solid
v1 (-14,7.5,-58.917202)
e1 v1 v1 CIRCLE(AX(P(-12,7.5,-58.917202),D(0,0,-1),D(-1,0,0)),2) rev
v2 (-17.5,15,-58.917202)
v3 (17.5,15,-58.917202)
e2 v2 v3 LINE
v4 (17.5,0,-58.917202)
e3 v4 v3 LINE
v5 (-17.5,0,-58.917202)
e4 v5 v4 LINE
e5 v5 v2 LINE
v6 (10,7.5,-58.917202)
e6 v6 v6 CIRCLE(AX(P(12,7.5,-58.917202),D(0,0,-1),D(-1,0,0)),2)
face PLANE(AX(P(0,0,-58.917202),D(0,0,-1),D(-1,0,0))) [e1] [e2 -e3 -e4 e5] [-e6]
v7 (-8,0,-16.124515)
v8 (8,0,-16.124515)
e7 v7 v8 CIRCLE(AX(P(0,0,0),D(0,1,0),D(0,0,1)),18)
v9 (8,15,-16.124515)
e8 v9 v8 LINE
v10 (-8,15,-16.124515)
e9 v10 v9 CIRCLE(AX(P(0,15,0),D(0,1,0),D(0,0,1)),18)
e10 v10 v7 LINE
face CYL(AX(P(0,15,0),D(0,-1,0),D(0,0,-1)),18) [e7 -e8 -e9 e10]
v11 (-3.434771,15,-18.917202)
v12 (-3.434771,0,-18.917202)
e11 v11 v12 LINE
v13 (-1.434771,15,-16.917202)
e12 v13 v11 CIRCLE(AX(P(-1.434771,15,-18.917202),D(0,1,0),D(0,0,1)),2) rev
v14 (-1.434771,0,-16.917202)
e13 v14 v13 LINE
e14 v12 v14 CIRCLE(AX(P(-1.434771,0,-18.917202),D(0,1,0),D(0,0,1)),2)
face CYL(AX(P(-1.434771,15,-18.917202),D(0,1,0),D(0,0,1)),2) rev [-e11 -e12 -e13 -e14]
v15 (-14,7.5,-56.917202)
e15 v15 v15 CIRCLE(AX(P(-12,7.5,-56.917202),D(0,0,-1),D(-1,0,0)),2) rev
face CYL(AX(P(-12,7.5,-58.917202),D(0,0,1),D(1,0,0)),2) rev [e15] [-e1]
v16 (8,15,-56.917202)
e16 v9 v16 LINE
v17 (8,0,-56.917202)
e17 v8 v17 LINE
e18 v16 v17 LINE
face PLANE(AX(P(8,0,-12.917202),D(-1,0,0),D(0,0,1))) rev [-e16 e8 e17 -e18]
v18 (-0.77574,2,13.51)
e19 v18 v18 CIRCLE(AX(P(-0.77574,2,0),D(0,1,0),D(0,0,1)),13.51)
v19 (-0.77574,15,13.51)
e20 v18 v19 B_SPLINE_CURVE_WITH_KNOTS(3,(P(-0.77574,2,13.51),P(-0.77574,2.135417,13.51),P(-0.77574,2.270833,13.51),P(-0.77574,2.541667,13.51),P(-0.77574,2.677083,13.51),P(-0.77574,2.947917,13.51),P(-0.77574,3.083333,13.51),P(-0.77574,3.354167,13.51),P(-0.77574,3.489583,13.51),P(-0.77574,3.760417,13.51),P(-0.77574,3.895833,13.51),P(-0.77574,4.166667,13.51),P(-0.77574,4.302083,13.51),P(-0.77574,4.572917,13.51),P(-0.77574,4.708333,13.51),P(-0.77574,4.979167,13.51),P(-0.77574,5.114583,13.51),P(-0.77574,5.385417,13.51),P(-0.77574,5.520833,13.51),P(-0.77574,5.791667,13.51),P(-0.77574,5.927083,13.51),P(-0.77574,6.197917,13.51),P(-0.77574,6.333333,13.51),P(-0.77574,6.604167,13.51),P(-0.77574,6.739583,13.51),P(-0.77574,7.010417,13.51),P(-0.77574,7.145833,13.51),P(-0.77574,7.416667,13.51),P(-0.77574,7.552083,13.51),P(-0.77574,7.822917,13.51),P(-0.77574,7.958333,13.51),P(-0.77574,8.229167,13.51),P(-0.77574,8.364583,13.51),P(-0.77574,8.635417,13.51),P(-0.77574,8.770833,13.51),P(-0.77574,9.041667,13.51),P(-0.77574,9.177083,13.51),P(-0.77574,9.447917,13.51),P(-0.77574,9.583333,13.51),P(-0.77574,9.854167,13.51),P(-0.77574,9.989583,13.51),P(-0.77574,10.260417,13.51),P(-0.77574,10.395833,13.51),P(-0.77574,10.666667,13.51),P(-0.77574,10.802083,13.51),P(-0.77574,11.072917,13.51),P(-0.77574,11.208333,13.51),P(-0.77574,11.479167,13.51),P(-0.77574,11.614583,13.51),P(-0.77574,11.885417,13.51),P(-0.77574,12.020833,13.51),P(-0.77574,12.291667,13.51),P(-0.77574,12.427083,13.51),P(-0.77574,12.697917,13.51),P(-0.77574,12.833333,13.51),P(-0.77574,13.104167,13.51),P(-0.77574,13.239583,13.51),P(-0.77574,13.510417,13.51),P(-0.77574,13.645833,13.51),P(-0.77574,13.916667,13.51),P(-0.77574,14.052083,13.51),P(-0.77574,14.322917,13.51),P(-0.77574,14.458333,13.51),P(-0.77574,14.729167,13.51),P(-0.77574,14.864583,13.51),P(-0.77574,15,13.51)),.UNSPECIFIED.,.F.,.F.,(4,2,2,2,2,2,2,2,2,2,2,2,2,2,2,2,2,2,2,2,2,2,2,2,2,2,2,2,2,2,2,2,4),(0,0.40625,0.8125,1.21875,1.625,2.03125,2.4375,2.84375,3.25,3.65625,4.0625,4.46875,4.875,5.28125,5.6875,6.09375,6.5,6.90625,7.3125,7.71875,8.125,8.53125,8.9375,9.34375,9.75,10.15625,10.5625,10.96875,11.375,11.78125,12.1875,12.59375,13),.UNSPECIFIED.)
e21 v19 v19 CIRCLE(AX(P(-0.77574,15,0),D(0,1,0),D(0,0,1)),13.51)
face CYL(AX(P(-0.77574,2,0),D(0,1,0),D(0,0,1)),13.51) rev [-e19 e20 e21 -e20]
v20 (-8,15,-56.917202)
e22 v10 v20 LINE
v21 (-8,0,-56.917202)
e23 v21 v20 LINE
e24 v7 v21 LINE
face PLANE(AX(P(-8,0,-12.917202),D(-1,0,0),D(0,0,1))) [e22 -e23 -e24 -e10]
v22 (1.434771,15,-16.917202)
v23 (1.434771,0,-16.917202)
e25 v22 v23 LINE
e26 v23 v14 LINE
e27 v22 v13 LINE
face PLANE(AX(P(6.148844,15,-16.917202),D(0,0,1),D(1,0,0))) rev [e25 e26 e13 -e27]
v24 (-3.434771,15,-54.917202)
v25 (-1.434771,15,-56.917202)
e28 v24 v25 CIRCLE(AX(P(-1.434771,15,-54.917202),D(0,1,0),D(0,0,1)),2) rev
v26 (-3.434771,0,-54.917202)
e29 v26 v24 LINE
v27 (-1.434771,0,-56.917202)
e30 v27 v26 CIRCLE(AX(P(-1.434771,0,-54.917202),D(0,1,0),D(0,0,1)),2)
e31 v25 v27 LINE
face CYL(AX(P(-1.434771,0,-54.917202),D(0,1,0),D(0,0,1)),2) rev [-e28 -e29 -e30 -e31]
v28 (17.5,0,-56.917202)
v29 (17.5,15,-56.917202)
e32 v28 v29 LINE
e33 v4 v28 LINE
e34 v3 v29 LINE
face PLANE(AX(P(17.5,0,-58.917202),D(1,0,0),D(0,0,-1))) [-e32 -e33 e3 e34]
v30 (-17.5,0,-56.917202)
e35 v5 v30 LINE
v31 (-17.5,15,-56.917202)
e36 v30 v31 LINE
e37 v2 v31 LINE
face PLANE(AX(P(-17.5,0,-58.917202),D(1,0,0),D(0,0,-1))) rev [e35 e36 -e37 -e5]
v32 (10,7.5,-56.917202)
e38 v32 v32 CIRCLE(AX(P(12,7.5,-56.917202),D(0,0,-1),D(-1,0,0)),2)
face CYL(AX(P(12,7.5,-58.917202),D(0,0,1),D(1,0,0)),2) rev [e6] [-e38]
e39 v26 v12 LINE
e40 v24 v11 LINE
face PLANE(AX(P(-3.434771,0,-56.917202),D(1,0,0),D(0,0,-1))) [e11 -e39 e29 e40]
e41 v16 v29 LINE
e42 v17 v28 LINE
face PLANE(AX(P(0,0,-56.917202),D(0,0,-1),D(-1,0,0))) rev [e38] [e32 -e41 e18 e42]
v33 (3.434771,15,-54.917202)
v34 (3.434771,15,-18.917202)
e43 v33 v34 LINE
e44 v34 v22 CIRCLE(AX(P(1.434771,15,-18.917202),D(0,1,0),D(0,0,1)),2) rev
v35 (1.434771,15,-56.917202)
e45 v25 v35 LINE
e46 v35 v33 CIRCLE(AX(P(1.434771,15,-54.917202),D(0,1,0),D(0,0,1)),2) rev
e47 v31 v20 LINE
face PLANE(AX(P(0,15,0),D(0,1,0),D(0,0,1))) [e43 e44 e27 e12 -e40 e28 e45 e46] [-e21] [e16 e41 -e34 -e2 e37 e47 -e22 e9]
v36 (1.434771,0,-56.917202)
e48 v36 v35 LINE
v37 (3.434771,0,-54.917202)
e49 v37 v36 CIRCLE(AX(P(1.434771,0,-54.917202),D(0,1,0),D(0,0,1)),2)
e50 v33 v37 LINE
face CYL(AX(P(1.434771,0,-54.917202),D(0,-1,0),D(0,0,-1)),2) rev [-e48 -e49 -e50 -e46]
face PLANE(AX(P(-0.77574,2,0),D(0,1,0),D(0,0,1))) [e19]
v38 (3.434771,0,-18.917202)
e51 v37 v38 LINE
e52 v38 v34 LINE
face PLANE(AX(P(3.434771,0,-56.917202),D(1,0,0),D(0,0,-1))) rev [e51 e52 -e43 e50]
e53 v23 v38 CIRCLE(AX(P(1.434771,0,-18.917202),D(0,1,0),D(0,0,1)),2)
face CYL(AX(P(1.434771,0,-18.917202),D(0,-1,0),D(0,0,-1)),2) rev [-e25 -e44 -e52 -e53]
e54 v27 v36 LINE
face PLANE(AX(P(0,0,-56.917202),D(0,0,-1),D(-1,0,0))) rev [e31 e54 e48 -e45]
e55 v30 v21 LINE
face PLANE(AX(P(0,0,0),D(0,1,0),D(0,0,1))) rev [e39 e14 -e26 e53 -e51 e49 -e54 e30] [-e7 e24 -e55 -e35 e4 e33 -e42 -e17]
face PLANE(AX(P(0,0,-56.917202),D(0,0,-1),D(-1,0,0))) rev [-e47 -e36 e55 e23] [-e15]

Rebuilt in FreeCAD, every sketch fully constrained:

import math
import FreeCAD as App
import Part
import Sketcher

V = App.Vector


def edges_at(feature, points):
    """Names of the edges that pass closest to the given points."""
    edges = feature.Shape.Edges
    near = lambda p: min(range(len(edges)), key=lambda i: edges[i].distToShape(Part.Vertex(*p))[0])
    return sorted({f"Edge{near(p) + 1}" for p in points})

doc = App.newDocument("Part")
body = doc.addObject("PartDesign::Body", "Body")

sketch1 = body.newObject("Sketcher::SketchObject", "Sketch")
sketch1.AttachmentSupport = (doc.getObject("XZ_Plane"), [""])
sketch1.MapMode = "FlatFace"
sketch1.addGeometry([
    Part.LineSegment(V(6, -17, 0), V(-6, -17, 0)),
    Part.ArcOfCircle(Part.Circle(V(0, 0, 0), V(0, 0, 1), 18), math.radians(-70), math.radians(250)),
], False)
sketch1.addConstraint([
    Sketcher.Constraint("Coincident", 0, 1, 1, 1),
    Sketcher.Constraint("Coincident", 1, 2, 0, 2),
    Sketcher.Constraint("Horizontal", 0),
    Sketcher.Constraint("Coincident", 1, 3, -1, 1),
    Sketcher.Constraint("Radius", 1, 18.0),
    Sketcher.Constraint("DistanceX", 0, 2, 0, 1, 12.297689),
])
pad1 = body.newObject("PartDesign::Pad", "Pad")
pad1.Profile = sketch1
pad1.Length = 15
pad1.Reversed = True

sketch2 = body.newObject("Sketcher::SketchObject", "Sketch001")
sketch2.AttachmentSupport = (doc.getObject("XY_Plane"), [""])
sketch2.MapMode = "FlatFace"
sketch2.AttachmentOffset = App.Placement(V(0, 0, -16.917202), App.Rotation())
sketch2.addGeometry([
    Part.LineSegment(V(8, 15, 0), V(8, 0, 0)),
    Part.LineSegment(V(8, 0, 0), V(-8, 0, 0)),
    Part.LineSegment(V(-8, 0, 0), V(-8, 15, 0)),
    Part.LineSegment(V(-8, 15, 0), V(8, 15, 0)),
], False)
sketch2.addConstraint([
    Sketcher.Constraint("Coincident", 0, 2, 1, 1),
    Sketcher.Constraint("Coincident", 1, 2, 2, 1),
    Sketcher.Constraint("Coincident", 2, 2, 3, 1),
    Sketcher.Constraint("Coincident", 3, 2, 0, 1),
    Sketcher.Constraint("Vertical", 0),
    Sketcher.Constraint("Horizontal", 1),
    Sketcher.Constraint("Vertical", 2),
    Sketcher.Constraint("Horizontal", 3),
    Sketcher.Constraint("Symmetric", 0, 2, 1, 2, -1, 1),
    Sketcher.Constraint("DistanceX", 1, 2, 1, 1, 16.0),
    Sketcher.Constraint("DistanceY", 0, 2, 0, 1, 15.0),
])
pad2 = body.newObject("PartDesign::Pad", "Pad001")
pad2.Profile = sketch2
pad2.Length = 4

sketch3 = body.newObject("Sketcher::SketchObject", "Sketch002")
sketch3.AttachmentSupport = (doc.getObject("XZ_Plane"), [""])
sketch3.MapMode = "FlatFace"
sketch3.AttachmentOffset = App.Placement(V(0, 0, -15), App.Rotation())
sketch3.addGeometry(Part.Circle(V(-1, 0, 0), V(0, 0, 1), 14), False)
sketch3.addConstraint([
    Sketcher.Constraint("PointOnObject", 0, 3, -1),
    Sketcher.Constraint("Diameter", 0, 27.02),
    Sketcher.Constraint("DistanceX", 0, 3, -1, 1, 0.77574),
])
pocket1 = body.newObject("PartDesign::Pocket", "Pocket")
pocket1.Profile = sketch3
pocket1.Length = 13
pocket1.Reversed = True

sketch4 = body.newObject("Sketcher::SketchObject", "Sketch003")
sketch4.AttachmentSupport = (doc.getObject("XY_Plane"), [""])
sketch4.MapMode = "FlatFace"
sketch4.AttachmentOffset = App.Placement(V(0, 0, -16.917202), App.Rotation())
sketch4.addGeometry([
    Part.LineSegment(V(-3.4, 15, 0), V(-3.4, 0, 0)),
    Part.LineSegment(V(-3.4, 0, 0), V(-8, 0, 0)),
    Part.LineSegment(V(-8, 0, 0), V(-8, 15, 0)),
    Part.LineSegment(V(-8, 15, 0), V(-3.4, 15, 0)),
    Part.LineSegment(V(8, 15, 0), V(8, 0, 0)),
    Part.LineSegment(V(8, 0, 0), V(3.4, 0, 0)),
    Part.LineSegment(V(3.4, 0, 0), V(3.4, 15, 0)),
    Part.LineSegment(V(3.4, 15, 0), V(8, 15, 0)),
], False)
sketch4.addConstraint([
    Sketcher.Constraint("Coincident", 0, 2, 1, 1),
    Sketcher.Constraint("Coincident", 1, 2, 2, 1),
    Sketcher.Constraint("Coincident", 2, 2, 3, 1),
    Sketcher.Constraint("Coincident", 3, 2, 0, 1),
    Sketcher.Constraint("Coincident", 4, 2, 5, 1),
    Sketcher.Constraint("Coincident", 5, 2, 6, 1),
    Sketcher.Constraint("Coincident", 6, 2, 7, 1),
    Sketcher.Constraint("Coincident", 7, 2, 4, 1),
    Sketcher.Constraint("Vertical", 0),
    Sketcher.Constraint("Horizontal", 1),
    Sketcher.Constraint("Vertical", 2),
    Sketcher.Constraint("Horizontal", 3),
    Sketcher.Constraint("Vertical", 4),
    Sketcher.Constraint("Horizontal", 5),
    Sketcher.Constraint("Vertical", 6),
    Sketcher.Constraint("Horizontal", 7),
    Sketcher.Constraint("Symmetric", 1, 2, 4, 2, -1, 1),
    Sketcher.Constraint("Symmetric", 0, 2, 5, 2, -2),
    Sketcher.Constraint("Horizontal", 3, 2, 6, 2),
    Sketcher.Constraint("DistanceY", 0, 2, 0, 1, 15.0),
    Sketcher.Constraint("DistanceX", 1, 2, -1, 1, 8.0),
    Sketcher.Constraint("DistanceX", 1, 2, 1, 1, 4.565229),
])
pad3 = body.newObject("PartDesign::Pad", "Pad002")
pad3.Profile = sketch4
pad3.Length = 40
pad3.Reversed = True
doc.recompute()

fillet = body.newObject("PartDesign::Fillet", "Fillet")
fillet.Base = (pad3, edges_at(pad3, [(-3.435, 7.5, -16.917), (3.435, 7.5, -16.917)]))
fillet.Radius = 2

sketch5 = body.newObject("Sketcher::SketchObject", "Sketch004")
sketch5.AttachmentSupport = (doc.getObject("XY_Plane"), [""])
sketch5.MapMode = "FlatFace"
sketch5.AttachmentOffset = App.Placement(V(0, 0, -56.917202), App.Rotation())
sketch5.addGeometry([
    Part.LineSegment(V(17.5, 15, 0), V(17.5, 0, 0)),
    Part.LineSegment(V(17.5, 0, 0), V(-17.5, 0, 0)),
    Part.LineSegment(V(-17.5, 0, 0), V(-17.5, 15, 0)),
    Part.LineSegment(V(-17.5, 15, 0), V(17.5, 15, 0)),
    Part.Circle(V(-12, 7.5, 0), V(0, 0, 1), 2),
    Part.Circle(V(12, 7.5, 0), V(0, 0, 1), 2),
], False)
sketch5.addConstraint([
    Sketcher.Constraint("Coincident", 0, 2, 1, 1),
    Sketcher.Constraint("Coincident", 1, 2, 2, 1),
    Sketcher.Constraint("Coincident", 2, 2, 3, 1),
    Sketcher.Constraint("Coincident", 3, 2, 0, 1),
    Sketcher.Constraint("Vertical", 0),
    Sketcher.Constraint("Horizontal", 1),
    Sketcher.Constraint("Vertical", 2),
    Sketcher.Constraint("Horizontal", 3),
    Sketcher.Constraint("Equal", 4, 5),
    Sketcher.Constraint("Symmetric", 0, 2, 1, 2, -1, 1),
    Sketcher.Constraint("Symmetric", 4, 3, 5, 3, -2),
    Sketcher.Constraint("Diameter", 4, 4.0),
    Sketcher.Constraint("DistanceX", 1, 2, 1, 1, 35.0),
    Sketcher.Constraint("DistanceY", 0, 2, 0, 1, 15.0),
    Sketcher.Constraint("DistanceX", 4, 3, -1, 1, 12.0),
    Sketcher.Constraint("DistanceY", -1, 1, 4, 3, 7.5),
])
pad4 = body.newObject("PartDesign::Pad", "Pad003")
pad4.Profile = sketch5
pad4.Length = 2
pad4.Reversed = True
doc.recompute()

fillet2 = body.newObject("PartDesign::Fillet", "Fillet001")
fillet2.Base = (pad4, edges_at(pad4, [(-3.435, 7.5, -56.917), (3.435, 7.5, -56.917)]))
fillet2.Radius = 2

doc.recompute()
